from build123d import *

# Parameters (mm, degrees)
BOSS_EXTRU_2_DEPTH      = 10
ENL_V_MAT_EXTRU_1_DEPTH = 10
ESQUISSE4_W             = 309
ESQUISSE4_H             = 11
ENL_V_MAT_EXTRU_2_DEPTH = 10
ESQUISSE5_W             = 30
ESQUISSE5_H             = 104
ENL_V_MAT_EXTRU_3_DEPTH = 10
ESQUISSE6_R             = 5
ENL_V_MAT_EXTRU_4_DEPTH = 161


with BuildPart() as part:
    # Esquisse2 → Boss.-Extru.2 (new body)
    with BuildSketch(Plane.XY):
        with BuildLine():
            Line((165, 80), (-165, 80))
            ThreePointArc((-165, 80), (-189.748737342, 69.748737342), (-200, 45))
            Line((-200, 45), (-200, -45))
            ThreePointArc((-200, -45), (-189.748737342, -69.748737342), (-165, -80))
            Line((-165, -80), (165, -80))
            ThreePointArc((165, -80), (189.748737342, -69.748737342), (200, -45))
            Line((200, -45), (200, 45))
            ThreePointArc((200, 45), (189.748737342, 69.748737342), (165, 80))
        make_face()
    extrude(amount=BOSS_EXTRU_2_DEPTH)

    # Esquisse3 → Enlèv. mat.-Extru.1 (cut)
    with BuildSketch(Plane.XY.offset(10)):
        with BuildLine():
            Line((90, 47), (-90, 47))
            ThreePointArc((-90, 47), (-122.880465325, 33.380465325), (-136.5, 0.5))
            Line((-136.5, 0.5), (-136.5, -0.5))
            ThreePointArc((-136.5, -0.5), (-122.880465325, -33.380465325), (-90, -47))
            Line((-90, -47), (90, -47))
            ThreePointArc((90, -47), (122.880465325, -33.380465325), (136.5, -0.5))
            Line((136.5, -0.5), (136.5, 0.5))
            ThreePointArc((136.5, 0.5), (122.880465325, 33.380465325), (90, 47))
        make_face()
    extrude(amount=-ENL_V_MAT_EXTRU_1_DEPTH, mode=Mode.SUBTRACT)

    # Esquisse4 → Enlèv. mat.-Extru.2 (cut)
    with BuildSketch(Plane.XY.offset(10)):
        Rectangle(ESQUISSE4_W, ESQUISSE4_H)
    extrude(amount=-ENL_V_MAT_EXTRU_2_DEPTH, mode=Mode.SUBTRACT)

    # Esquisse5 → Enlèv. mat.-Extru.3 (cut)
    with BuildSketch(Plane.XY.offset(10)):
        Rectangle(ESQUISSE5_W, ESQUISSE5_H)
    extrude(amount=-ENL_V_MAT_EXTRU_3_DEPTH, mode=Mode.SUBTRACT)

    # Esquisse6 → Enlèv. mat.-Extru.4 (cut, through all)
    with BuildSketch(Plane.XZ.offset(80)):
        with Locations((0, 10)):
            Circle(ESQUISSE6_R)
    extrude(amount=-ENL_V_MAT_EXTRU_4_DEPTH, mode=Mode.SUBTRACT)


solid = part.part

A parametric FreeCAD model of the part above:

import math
import FreeCAD as App
import Part
import Sketcher
from FreeCAD import Vector
Q = App.Units.Quantity


def add_polygon(sketch, points):
    """Adds a closed chain of lines whose ends are joined by coincident constraints."""
    first, n = sketch.GeometryCount, len(points)
    for a, b in zip(points, points[1:] + points[:1]):
        sketch.addGeometry(Part.LineSegment(App.Vector(*a, 0), App.Vector(*b, 0)), False)
    for i in range(n):
        sketch.addConstraint(Sketcher.Constraint("Coincident", first + i, 2, first + (i + 1) % n, 1))

doc = App.newDocument("Part")
params = doc.addObject("Spreadsheet::Sheet", "Params")
for row, (alias, value) in enumerate([
    ("sketch1_radius", "35 mm"),
    ("sketch1_width", "330 mm"),
    ("sketch1_height", "90 mm"),
    ("pad1_length", "10 mm"),
    ("sketch2_radius", "46.5 mm"),
    ("sketch2_width", "180 mm"),
    ("sketch2_height", "1 mm"),
    ("pocket1_length", "10 mm"),
    ("sketch3_width", "309 mm"),
    ("sketch3_height", "11 mm"),
    ("pocket2_length", "10 mm"),
    ("sketch4_width", "30 mm"),
    ("sketch4_height", "104 mm"),
    ("pocket3_length", "10 mm"),
    ("sketch5_diameter", "10 mm"),
], start=1):
    params.set(f"A{row}", alias)
    params.set(f"B{row}", "=" + value)
    params.setAlias(f"B{row}", alias)

body = doc.addObject("PartDesign::Body", "Body")

sketch1 = body.newObject("Sketcher::SketchObject", "Sketch")
sketch1.AttachmentSupport = (doc.getObject("XY_Plane"), [""])
sketch1.MapMode = "FlatFace"
sketch1.addGeometry(Part.LineSegment(Vector(165, 80, 0), Vector(-165, 80, 0)), False)
sketch1.addGeometry(Part.ArcOfCircle(Part.Circle(Vector(-165, 45, 0), Vector(0, 0, 1), 35), math.radians(90), math.radians(180)), False)
sketch1.addGeometry(Part.LineSegment(Vector(-200, 45, 0), Vector(-200, -45, 0)), False)
sketch1.addGeometry(Part.ArcOfCircle(Part.Circle(Vector(-165, -45, 0), Vector(0, 0, 1), 35), math.radians(180), math.radians(270)), False)
sketch1.addGeometry(Part.LineSegment(Vector(-165, -80, 0), Vector(165, -80, 0)), False)
sketch1.addGeometry(Part.ArcOfCircle(Part.Circle(Vector(165, -45, 0), Vector(0, 0, 1), 35), math.radians(-90), math.radians(0)), False)
sketch1.addGeometry(Part.LineSegment(Vector(200, -45, 0), Vector(200, 45, 0)), False)
sketch1.addGeometry(Part.ArcOfCircle(Part.Circle(Vector(165, 45, 0), Vector(0, 0, 1), 35), math.radians(0), math.radians(90)), False)
sketch1.addConstraint(Sketcher.Constraint("Tangent", 0, 2, 1, 1))
sketch1.addConstraint(Sketcher.Constraint("Tangent", 1, 2, 2, 1))
sketch1.addConstraint(Sketcher.Constraint("Tangent", 2, 2, 3, 1))
sketch1.addConstraint(Sketcher.Constraint("Tangent", 3, 2, 4, 1))
sketch1.addConstraint(Sketcher.Constraint("Tangent", 4, 2, 5, 1))
sketch1.addConstraint(Sketcher.Constraint("Tangent", 5, 2, 6, 1))
sketch1.addConstraint(Sketcher.Constraint("Tangent", 6, 2, 7, 1))
sketch1.addConstraint(Sketcher.Constraint("Tangent", 7, 2, 0, 1))
sketch1.addConstraint(Sketcher.Constraint("Horizontal", 0))
sketch1.addConstraint(Sketcher.Constraint("Vertical", 2))
sketch1.addConstraint(Sketcher.Constraint("Horizontal", 4))
sketch1.addConstraint(Sketcher.Constraint("Vertical", 6))
sketch1.addConstraint(Sketcher.Constraint("Equal", 1, 3))
sketch1.addConstraint(Sketcher.Constraint("Equal", 3, 5))
sketch1.addConstraint(Sketcher.Constraint("Equal", 5, 7))
sketch1.addConstraint(Sketcher.Constraint("Symmetric", 1, 3, 5, 3, -1, 1))
sketch1.addConstraint(Sketcher.Constraint("Radius", 1, Q("35 mm")))
sketch1.addConstraint(Sketcher.Constraint("DistanceX", 0, 2, 0, 1, Q("330 mm")))
sketch1.addConstraint(Sketcher.Constraint("DistanceY", 2, 2, 2, 1, Q("90 mm")))
sketch1.setExpression("Constraints[16]", "Params.sketch1_radius")
sketch1.setExpression("Constraints[17]", "Params.sketch1_width")
sketch1.setExpression("Constraints[18]", "Params.sketch1_height")
pad1 = body.newObject("PartDesign::Pad", "Pad")
pad1.Profile = sketch1
pad1.setExpression("Length", "Params.pad1_length")

sketch2 = body.newObject("Sketcher::SketchObject", "Sketch001")
sketch2.AttachmentSupport = (doc.getObject("XY_Plane"), [""])
sketch2.MapMode = "FlatFace"
sketch2.AttachmentOffset = App.Placement(Vector(0, 0, 10), App.Rotation())
sketch2.addGeometry(Part.LineSegment(Vector(90, 47, 0), Vector(-90, 47, 0)), False)
sketch2.addGeometry(Part.ArcOfCircle(Part.Circle(Vector(-90, 0.5, 0), Vector(0, 0, 1), 46.5), math.radians(90), math.radians(180)), False)
sketch2.addGeometry(Part.LineSegment(Vector(-136.5, 0.5, 0), Vector(-136.5, -0.5, 0)), False)
sketch2.addGeometry(Part.ArcOfCircle(Part.Circle(Vector(-90, -0.5, 0), Vector(0, 0, 1), 46.5), math.radians(-180), math.radians(-90)), False)
sketch2.addGeometry(Part.LineSegment(Vector(-90, -47, 0), Vector(90, -47, 0)), False)
sketch2.addGeometry(Part.ArcOfCircle(Part.Circle(Vector(90, -0.5, 0), Vector(0, 0, 1), 46.5), math.radians(-90), math.radians(0)), False)
sketch2.addGeometry(Part.LineSegment(Vector(136.5, -0.5, 0), Vector(136.5, 0.5, 0)), False)
sketch2.addGeometry(Part.ArcOfCircle(Part.Circle(Vector(90, 0.5, 0), Vector(0, 0, 1), 46.5), math.radians(0), math.radians(90)), False)
sketch2.addConstraint(Sketcher.Constraint("Tangent", 0, 2, 1, 1))
sketch2.addConstraint(Sketcher.Constraint("Tangent", 1, 2, 2, 1))
sketch2.addConstraint(Sketcher.Constraint("Tangent", 2, 2, 3, 1))
sketch2.addConstraint(Sketcher.Constraint("Tangent", 3, 2, 4, 1))
sketch2.addConstraint(Sketcher.Constraint("Tangent", 4, 2, 5, 1))
sketch2.addConstraint(Sketcher.Constraint("Tangent", 5, 2, 6, 1))
sketch2.addConstraint(Sketcher.Constraint("Tangent", 6, 2, 7, 1))
sketch2.addConstraint(Sketcher.Constraint("Tangent", 7, 2, 0, 1))
sketch2.addConstraint(Sketcher.Constraint("Horizontal", 0))
sketch2.addConstraint(Sketcher.Constraint("Vertical", 2))
sketch2.addConstraint(Sketcher.Constraint("Horizontal", 4))
sketch2.addConstraint(Sketcher.Constraint("Vertical", 6))
sketch2.addConstraint(Sketcher.Constraint("Equal", 1, 3))
sketch2.addConstraint(Sketcher.Constraint("Equal", 3, 5))
sketch2.addConstraint(Sketcher.Constraint("Equal", 5, 7))
sketch2.addConstraint(Sketcher.Constraint("Symmetric", 1, 3, 5, 3, -1, 1))
sketch2.addConstraint(Sketcher.Constraint("Radius", 1, Q("46.5 mm")))
sketch2.addConstraint(Sketcher.Constraint("DistanceX", 0, 2, 0, 1, Q("180 mm")))
sketch2.addConstraint(Sketcher.Constraint("DistanceY", 2, 2, 2, 1, Q("1 mm")))
sketch2.setExpression("Constraints[16]", "Params.sketch2_radius")
sketch2.setExpression("Constraints[17]", "Params.sketch2_width")
sketch2.setExpression("Constraints[18]", "Params.sketch2_height")
pocket1 = body.newObject("PartDesign::Pocket", "Pocket")
pocket1.Profile = sketch2
pocket1.setExpression("Length", "Params.pocket1_length")

sketch3 = body.newObject("Sketcher::SketchObject", "Sketch002")
sketch3.AttachmentSupport = (doc.getObject("XY_Plane"), [""])
sketch3.MapMode = "FlatFace"
sketch3.AttachmentOffset = App.Placement(Vector(0, 0, 10), App.Rotation())
add_polygon(sketch3, [(-154.5, 5.5), (-154.5, -5.5), (154.5, -5.5), (154.5, 5.5)])
sketch3.addConstraint(Sketcher.Constraint("Vertical", 0))
sketch3.addConstraint(Sketcher.Constraint("Horizontal", 1))
sketch3.addConstraint(Sketcher.Constraint("Vertical", 2))
sketch3.addConstraint(Sketcher.Constraint("Horizontal", 3))
sketch3.addConstraint(Sketcher.Constraint("Symmetric", 0, 2, 2, 2, -1, 1))
sketch3.addConstraint(Sketcher.Constraint("DistanceX", 1, 1, 1, 2, Q("309 mm")))
sketch3.addConstraint(Sketcher.Constraint("DistanceY", 0, 2, 0, 1, Q("11 mm")))
sketch3.setExpression("Constraints[9]", "Params.sketch3_width")
sketch3.setExpression("Constraints[10]", "Params.sketch3_height")
pocket2 = body.newObject("PartDesign::Pocket", "Pocket001")
pocket2.Profile = sketch3
pocket2.setExpression("Length", "Params.pocket2_length")

sketch4 = body.newObject("Sketcher::SketchObject", "Sketch003")
sketch4.AttachmentSupport = (doc.getObject("XY_Plane"), [""])
sketch4.MapMode = "FlatFace"
sketch4.AttachmentOffset = App.Placement(Vector(0, 0, 10), App.Rotation())
add_polygon(sketch4, [(-15, 52), (-15, -52), (15, -52), (15, 52)])
sketch4.addConstraint(Sketcher.Constraint("Vertical", 0))
sketch4.addConstraint(Sketcher.Constraint("Horizontal", 1))
sketch4.addConstraint(Sketcher.Constraint("Vertical", 2))
sketch4.addConstraint(Sketcher.Constraint("Horizontal", 3))
sketch4.addConstraint(Sketcher.Constraint("Symmetric", 0, 2, 2, 2, -1, 1))
sketch4.addConstraint(Sketcher.Constraint("DistanceX", 1, 1, 1, 2, Q("30 mm")))
sketch4.addConstraint(Sketcher.Constraint("DistanceY", 0, 2, 0, 1, Q("104 mm")))
sketch4.setExpression("Constraints[9]", "Params.sketch4_width")
sketch4.setExpression("Constraints[10]", "Params.sketch4_height")
pocket3 = body.newObject("PartDesign::Pocket", "Pocket002")
pocket3.Profile = sketch4
pocket3.setExpression("Length", "Params.pocket3_length")

sketch5 = body.newObject("Sketcher::SketchObject", "Sketch004")
sketch5.AttachmentSupport = (doc.getObject("XZ_Plane"), [""])
sketch5.MapMode = "FlatFace"
sketch5.AttachmentOffset = App.Placement(Vector(0, 0, 80), App.Rotation())
sketch5.addGeometry(Part.Circle(Vector(0, 10, 0), Vector(0, 0, 1), 5), False)
sketch5.addConstraint(Sketcher.Constraint("PointOnObject", 0, 3, -2))
sketch5.addConstraint(Sketcher.Constraint("Diameter", 0, Q("10 mm")))
sketch5.addConstraint(Sketcher.Constraint("DistanceY", -1, 1, 0, 3, Q("10 mm")))
sketch5.setExpression("Constraints[1]", "Params.sketch5_diameter")
pocket4 = body.newObject("PartDesign::Pocket", "Pocket003")
pocket4.Profile = sketch5
pocket4.Type = "ThroughAll"

doc.recompute()
